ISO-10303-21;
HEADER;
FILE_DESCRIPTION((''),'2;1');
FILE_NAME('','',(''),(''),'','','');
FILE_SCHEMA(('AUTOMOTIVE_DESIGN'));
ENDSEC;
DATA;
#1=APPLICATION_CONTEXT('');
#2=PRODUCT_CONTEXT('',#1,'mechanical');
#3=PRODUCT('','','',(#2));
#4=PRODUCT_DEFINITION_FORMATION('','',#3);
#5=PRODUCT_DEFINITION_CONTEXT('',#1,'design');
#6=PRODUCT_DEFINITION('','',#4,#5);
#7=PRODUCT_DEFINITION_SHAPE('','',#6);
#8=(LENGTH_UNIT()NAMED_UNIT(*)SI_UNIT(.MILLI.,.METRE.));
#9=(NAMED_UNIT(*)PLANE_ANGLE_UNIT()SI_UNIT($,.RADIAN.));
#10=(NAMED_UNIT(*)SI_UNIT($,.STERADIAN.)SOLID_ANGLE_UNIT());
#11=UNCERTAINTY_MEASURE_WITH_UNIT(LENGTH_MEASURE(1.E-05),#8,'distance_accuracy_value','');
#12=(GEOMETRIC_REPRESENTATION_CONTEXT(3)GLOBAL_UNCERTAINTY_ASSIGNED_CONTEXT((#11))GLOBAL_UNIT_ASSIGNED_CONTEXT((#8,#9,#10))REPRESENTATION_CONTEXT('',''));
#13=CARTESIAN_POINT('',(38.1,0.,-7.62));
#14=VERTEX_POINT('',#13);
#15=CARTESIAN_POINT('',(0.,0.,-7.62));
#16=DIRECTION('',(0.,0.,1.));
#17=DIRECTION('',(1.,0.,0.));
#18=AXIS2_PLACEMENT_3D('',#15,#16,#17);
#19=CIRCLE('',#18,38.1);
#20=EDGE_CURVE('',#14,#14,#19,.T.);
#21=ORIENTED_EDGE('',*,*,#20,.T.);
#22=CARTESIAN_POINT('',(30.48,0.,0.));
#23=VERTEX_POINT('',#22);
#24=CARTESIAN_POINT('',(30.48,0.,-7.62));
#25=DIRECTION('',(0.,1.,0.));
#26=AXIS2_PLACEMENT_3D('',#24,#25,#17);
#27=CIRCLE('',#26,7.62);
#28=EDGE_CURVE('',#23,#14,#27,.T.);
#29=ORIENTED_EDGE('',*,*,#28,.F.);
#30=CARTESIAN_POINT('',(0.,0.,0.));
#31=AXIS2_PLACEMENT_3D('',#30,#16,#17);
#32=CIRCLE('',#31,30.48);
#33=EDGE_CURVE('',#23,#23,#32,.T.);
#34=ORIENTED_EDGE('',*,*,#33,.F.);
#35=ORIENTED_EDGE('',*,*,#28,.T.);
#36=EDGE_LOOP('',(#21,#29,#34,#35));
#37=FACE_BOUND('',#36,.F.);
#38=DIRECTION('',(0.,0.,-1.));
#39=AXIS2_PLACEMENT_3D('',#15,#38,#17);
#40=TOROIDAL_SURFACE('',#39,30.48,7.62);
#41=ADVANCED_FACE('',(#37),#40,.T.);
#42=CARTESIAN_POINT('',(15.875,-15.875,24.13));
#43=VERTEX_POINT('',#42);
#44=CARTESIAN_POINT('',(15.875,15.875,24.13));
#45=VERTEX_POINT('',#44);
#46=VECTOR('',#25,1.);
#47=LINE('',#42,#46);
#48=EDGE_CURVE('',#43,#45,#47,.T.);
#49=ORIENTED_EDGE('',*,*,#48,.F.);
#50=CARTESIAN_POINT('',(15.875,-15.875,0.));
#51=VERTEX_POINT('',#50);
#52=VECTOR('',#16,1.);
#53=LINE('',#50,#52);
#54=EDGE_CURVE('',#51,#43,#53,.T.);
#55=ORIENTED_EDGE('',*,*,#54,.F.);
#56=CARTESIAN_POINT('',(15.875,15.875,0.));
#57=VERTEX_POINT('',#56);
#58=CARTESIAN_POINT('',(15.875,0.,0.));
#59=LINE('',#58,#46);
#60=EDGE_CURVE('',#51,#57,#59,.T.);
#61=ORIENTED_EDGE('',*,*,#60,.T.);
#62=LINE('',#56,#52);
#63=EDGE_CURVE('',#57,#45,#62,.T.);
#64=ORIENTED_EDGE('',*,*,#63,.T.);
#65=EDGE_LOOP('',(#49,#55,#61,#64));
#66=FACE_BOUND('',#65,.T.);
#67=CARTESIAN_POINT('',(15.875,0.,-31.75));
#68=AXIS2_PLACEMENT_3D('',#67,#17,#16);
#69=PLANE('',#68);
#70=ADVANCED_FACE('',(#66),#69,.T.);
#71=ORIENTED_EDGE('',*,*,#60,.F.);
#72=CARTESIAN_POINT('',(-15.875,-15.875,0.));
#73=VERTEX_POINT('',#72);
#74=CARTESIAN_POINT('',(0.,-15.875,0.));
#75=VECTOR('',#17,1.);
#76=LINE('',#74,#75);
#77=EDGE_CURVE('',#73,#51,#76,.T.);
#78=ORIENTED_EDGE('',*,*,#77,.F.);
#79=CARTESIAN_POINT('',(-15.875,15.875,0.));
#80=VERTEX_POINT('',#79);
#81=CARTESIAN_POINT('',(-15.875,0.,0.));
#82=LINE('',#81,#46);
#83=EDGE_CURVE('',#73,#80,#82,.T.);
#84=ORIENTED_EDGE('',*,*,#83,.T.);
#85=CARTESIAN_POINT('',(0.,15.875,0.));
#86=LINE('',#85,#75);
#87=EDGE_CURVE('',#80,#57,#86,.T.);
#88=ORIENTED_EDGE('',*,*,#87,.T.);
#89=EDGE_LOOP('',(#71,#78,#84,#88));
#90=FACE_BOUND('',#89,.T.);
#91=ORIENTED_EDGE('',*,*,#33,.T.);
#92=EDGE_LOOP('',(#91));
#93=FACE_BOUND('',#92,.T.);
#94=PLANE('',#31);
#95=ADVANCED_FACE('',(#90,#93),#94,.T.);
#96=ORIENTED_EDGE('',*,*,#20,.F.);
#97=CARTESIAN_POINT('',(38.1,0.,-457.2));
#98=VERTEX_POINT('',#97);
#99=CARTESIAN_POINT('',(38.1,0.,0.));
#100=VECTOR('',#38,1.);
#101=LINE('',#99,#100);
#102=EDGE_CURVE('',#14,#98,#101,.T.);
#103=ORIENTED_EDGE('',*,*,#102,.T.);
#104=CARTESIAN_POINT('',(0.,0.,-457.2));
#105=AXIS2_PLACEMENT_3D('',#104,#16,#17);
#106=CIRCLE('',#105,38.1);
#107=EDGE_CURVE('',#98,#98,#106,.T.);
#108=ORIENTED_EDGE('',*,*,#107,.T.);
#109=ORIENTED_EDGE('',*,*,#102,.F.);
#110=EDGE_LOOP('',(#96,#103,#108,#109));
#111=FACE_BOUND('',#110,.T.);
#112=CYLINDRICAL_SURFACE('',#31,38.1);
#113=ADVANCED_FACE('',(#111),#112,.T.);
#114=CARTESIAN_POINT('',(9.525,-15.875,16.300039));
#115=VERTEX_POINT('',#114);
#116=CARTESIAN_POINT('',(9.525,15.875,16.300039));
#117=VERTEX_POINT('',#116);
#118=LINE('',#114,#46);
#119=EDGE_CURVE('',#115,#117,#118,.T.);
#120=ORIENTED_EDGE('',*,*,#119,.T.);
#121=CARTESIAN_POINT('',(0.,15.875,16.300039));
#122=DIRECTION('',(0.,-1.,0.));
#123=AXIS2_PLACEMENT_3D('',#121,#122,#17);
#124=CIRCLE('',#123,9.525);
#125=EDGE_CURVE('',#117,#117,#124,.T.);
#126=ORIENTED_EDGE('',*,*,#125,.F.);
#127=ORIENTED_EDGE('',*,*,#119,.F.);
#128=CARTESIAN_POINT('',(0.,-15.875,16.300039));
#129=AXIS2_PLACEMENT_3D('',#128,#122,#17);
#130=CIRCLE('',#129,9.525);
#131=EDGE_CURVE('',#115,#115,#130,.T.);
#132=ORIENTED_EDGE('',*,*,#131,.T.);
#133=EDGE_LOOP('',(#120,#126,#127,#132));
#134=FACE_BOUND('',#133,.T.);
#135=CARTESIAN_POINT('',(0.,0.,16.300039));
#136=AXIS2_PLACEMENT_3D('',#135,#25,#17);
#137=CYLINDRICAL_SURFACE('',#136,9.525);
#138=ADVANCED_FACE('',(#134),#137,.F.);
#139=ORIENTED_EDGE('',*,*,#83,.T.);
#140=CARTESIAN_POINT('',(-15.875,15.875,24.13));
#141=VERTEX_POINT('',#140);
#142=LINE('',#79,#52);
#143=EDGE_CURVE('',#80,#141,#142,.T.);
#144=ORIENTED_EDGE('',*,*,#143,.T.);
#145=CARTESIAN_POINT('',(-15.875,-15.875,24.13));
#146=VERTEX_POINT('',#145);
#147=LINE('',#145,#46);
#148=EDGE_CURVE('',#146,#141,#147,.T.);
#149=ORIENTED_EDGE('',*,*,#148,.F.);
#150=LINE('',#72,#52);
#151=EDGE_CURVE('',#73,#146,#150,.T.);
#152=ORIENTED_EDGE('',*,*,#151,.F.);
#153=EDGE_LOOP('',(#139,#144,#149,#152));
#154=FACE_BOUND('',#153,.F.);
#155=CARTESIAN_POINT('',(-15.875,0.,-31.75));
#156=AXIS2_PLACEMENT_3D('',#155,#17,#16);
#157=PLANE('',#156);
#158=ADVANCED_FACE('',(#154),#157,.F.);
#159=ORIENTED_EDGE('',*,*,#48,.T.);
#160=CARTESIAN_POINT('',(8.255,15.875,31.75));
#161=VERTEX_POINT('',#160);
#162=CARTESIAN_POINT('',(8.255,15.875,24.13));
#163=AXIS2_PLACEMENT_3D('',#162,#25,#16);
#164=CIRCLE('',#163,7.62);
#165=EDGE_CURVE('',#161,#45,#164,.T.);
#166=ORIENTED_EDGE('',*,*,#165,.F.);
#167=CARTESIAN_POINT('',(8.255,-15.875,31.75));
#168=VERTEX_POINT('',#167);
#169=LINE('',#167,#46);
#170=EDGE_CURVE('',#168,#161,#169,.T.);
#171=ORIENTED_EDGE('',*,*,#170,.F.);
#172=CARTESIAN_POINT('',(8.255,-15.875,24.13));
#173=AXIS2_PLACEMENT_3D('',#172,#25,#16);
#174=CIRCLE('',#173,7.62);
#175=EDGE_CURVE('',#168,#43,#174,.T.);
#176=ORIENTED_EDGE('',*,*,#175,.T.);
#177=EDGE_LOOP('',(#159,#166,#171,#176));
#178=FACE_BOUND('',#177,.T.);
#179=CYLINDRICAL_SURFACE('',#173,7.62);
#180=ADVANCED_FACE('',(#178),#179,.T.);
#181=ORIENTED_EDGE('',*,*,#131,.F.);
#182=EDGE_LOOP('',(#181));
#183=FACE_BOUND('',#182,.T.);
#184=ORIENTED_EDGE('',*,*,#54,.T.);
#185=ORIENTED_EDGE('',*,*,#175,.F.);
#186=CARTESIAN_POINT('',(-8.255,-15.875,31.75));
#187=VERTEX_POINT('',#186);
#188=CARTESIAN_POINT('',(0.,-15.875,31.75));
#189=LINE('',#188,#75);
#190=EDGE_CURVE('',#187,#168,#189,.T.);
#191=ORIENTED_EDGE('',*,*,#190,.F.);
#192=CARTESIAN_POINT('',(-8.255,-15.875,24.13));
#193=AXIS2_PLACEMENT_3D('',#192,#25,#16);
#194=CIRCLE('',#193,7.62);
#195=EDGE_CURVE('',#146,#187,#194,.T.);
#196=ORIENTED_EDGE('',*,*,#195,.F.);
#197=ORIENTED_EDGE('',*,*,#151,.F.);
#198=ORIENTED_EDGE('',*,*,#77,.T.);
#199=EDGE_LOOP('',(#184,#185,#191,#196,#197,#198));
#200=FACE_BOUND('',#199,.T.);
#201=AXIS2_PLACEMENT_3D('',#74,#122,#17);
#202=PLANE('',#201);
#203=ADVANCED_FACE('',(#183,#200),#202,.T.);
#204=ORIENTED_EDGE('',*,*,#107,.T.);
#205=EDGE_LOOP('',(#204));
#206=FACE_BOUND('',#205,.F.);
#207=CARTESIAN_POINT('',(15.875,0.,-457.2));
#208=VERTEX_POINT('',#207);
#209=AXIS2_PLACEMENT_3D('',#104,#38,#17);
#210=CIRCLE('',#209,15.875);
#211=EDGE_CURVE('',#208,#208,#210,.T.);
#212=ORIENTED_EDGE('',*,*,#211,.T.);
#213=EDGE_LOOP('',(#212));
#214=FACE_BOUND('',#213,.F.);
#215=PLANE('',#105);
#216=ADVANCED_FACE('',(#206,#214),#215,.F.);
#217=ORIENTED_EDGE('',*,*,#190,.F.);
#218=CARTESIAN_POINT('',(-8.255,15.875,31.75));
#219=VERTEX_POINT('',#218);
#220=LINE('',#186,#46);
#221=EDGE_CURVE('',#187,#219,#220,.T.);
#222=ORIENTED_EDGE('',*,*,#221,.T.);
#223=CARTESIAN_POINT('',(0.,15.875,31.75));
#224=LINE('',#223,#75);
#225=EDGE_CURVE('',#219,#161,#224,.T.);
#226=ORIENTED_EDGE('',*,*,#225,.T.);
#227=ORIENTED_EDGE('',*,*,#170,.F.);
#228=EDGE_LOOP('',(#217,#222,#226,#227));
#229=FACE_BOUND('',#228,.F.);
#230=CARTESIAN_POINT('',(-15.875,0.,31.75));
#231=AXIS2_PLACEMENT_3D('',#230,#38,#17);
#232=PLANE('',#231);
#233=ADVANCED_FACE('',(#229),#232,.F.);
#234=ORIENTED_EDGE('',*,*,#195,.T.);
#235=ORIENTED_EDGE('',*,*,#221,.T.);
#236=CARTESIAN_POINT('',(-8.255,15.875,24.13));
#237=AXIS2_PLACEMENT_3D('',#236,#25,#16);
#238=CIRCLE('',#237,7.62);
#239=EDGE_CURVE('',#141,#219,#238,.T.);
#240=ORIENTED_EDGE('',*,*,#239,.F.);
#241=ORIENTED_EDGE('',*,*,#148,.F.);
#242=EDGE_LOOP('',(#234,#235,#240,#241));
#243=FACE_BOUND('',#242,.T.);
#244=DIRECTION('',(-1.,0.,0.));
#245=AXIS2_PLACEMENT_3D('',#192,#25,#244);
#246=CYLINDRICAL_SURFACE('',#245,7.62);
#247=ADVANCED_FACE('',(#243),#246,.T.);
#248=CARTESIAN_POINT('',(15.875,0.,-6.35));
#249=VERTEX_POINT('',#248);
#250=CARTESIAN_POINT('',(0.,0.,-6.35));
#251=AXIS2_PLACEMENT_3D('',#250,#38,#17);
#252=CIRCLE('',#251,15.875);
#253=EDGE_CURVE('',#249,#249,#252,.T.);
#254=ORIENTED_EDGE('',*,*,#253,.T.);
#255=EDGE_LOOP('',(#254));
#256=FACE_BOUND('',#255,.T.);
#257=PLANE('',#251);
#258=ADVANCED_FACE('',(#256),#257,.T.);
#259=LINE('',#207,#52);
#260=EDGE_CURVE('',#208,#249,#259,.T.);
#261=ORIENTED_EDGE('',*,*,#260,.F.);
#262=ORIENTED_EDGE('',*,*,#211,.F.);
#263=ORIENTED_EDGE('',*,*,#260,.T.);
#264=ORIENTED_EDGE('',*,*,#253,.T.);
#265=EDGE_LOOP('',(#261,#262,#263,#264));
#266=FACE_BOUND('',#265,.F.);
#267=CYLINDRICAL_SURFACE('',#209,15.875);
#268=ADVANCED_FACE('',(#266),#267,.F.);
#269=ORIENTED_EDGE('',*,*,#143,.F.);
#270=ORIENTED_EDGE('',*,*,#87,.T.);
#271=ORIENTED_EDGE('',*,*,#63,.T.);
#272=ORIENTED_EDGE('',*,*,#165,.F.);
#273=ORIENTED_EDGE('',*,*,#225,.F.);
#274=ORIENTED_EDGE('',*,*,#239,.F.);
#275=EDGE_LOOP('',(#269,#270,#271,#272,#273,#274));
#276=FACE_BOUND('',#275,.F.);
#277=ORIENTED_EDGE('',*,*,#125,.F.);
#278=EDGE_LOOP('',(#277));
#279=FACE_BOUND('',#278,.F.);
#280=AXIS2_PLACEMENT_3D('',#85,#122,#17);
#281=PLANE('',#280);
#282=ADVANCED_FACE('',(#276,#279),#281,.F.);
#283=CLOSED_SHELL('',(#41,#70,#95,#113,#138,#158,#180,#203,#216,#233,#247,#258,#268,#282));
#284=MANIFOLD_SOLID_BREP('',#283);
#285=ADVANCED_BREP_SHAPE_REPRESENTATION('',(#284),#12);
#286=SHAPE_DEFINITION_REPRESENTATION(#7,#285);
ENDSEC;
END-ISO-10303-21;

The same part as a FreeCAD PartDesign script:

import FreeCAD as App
import Part
import Sketcher

V = App.Vector
Q = App.Units.Quantity


def edges_at(feature, points):
    """Names of the edges that pass closest to the given points."""
    edges = feature.Shape.Edges
    near = lambda p: min(range(len(edges)), key=lambda i: edges[i].distToShape(Part.Vertex(*p))[0])
    return sorted({f"Edge{near(p) + 1}" for p in points})


def add_polygon(sketch, points):
    """Adds a closed chain of lines whose ends are joined by coincident constraints."""
    first, n = sketch.GeometryCount, len(points)
    for a, b in zip(points, points[1:] + points[:1]):
        sketch.addGeometry(Part.LineSegment(App.Vector(*a, 0), App.Vector(*b, 0)), False)
    for i in range(n):
        sketch.addConstraint(Sketcher.Constraint("Coincident", first + i, 2, first + (i + 1) % n, 1))

doc = App.newDocument("Part")
body = doc.addObject("PartDesign::Body", "Body")

sketch1 = doc.addObject("Sketcher::SketchObject", "Sketch")
body.addObject(sketch1)
sketch1.AttachmentSupport = (doc.XY_Plane, [""])
sketch1.MapMode = "FlatFace"
sketch1.addGeometry(Part.Circle(V(0, 0, 0), V(0, 0, 1), 38), False)
sketch1.addConstraint([
    Sketcher.Constraint("Coincident", 0, 3, -1, 1),
    Sketcher.Constraint("Diameter", 0, Q("3 in")),
])
pad1 = doc.addObject("PartDesign::Pad", "Pad")
body.addObject(pad1)
pad1.Profile = sketch1
pad1.Length = Q("18 in")
pad1.Reversed = True

sketch2 = doc.addObject("Sketcher::SketchObject", "Sketch001")
body.addObject(sketch2)
sketch2.AttachmentSupport = (doc.XZ_Plane, [""])
sketch2.MapMode = "FlatFace"
add_polygon(sketch2, [(-16, 32), (-16, -32), (16, -32), (16, 32)])
sketch2.addGeometry(Part.Circle(V(0, 16, 0), V(0, 0, 1), 10), False)
sketch2.addConstraint([
    Sketcher.Constraint("Vertical", 0),
    Sketcher.Constraint("Horizontal", 1),
    Sketcher.Constraint("Vertical", 2),
    Sketcher.Constraint("Horizontal", 3),
    Sketcher.Constraint("Symmetric", 0, 2, 2, 2, -1, 1),
    Sketcher.Constraint("PointOnObject", 4, 3, -2),
    Sketcher.Constraint("Diameter", 4, Q("0.75 in")),
    Sketcher.Constraint("DistanceY", 0, 2, 0, 1, Q("2.5 in")),
    Sketcher.Constraint("DistanceX", 1, 1, 1, 2, Q("1.25 in")),
    Sketcher.Constraint("DistanceY", -1, 1, 4, 3, Q("16.300039 mm")),
])
pad2 = doc.addObject("PartDesign::Pad", "Pad001")
body.addObject(pad2)
pad2.Profile = sketch2
pad2.Length = Q("1.25 in")
pad2.Midplane = True
doc.recompute()

fillet = doc.addObject("PartDesign::Fillet", "Fillet")
body.addObject(fillet)
fillet.Base = (pad2, edges_at(pad2, [(15.875, 0, 31.75), (-15.875, 0, 31.75), (-38.1, 0, 0)]))
fillet.Radius = Q("0.3 in")

sketch3 = doc.addObject("Sketcher::SketchObject", "Sketch002")
body.addObject(sketch3)
sketch3.AttachmentSupport = (doc.XY_Plane, [""])
sketch3.MapMode = "FlatFace"
sketch3.AttachmentOffset = App.Placement(V(0, 0, -18 * 25.4), App.Rotation())
sketch3.addGeometry(Part.Circle(V(0, 0, 0), V(0, 0, 1), 16), False)
sketch3.addConstraint([
    Sketcher.Constraint("Coincident", 0, 3, -1, 1),
    Sketcher.Constraint("Diameter", 0, Q("1.25 in")),
])
pocket1 = doc.addObject("PartDesign::Pocket", "Pocket")
body.addObject(pocket1)
pocket1.Profile = sketch3
pocket1.Length = Q("17.75 in")
pocket1.Reversed = True

doc.recompute()
